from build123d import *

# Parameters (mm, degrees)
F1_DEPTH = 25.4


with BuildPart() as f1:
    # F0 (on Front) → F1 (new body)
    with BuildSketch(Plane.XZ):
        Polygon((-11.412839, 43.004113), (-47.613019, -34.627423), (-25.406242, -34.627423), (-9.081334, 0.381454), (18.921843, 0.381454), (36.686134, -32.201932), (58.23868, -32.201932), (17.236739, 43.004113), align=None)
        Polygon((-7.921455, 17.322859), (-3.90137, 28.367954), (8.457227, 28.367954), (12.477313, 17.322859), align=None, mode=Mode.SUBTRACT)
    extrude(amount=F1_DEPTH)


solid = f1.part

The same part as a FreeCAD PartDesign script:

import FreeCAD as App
import Part
import Sketcher

V = App.Vector
Q = App.Units.Quantity

doc = App.newDocument("Part")
body = doc.addObject("PartDesign::Body", "Body")

sketch1 = body.newObject("Sketcher::SketchObject", "Sketch")
sketch1.AttachmentSupport = (doc.getObject("XZ_Plane"), [""])
sketch1.MapMode = "FlatFace"
sketch1.addGeometry([
    Part.LineSegment(V(-11.412839, 43.004113, 0), V(-47.613019, -34.627423, 0)),
    Part.LineSegment(V(-47.613019, -34.627423, 0), V(-25.406242, -34.627423, 0)),
    Part.LineSegment(V(-25.406242, -34.627423, 0), V(-9.081334, 0.381454, 0)),
    Part.LineSegment(V(-9.081334, 0.381454, 0), V(18.921843, 0.381454, 0)),
    Part.LineSegment(V(18.921843, 0.381454, 0), V(36.686134, -32.201932, 0)),
    Part.LineSegment(V(36.686134, -32.201932, 0), V(58.23868, -32.201932, 0)),
    Part.LineSegment(V(58.23868, -32.201932, 0), V(17.236739, 43.004113, 0)),
    Part.LineSegment(V(17.236739, 43.004113, 0), V(-11.412839, 43.004113, 0)),
    Part.LineSegment(V(12.477313, 17.322859, 0), V(-7.921455, 17.322859, 0)),
    Part.LineSegment(V(-7.921455, 17.322859, 0), V(-3.90137, 28.367954, 0)),
    Part.LineSegment(V(-3.90137, 28.367954, 0), V(8.457227, 28.367954, 0)),
    Part.LineSegment(V(8.457227, 28.367954, 0), V(12.477313, 17.322859, 0)),
], False)
sketch1.addConstraint([
    Sketcher.Constraint("Coincident", 0, 2, 1, 1),
    Sketcher.Constraint("Coincident", 1, 2, 2, 1),
    Sketcher.Constraint("Coincident", 2, 2, 3, 1),
    Sketcher.Constraint("Coincident", 3, 2, 4, 1),
    Sketcher.Constraint("Coincident", 4, 2, 5, 1),
    Sketcher.Constraint("Coincident", 5, 2, 6, 1),
    Sketcher.Constraint("Coincident", 6, 2, 7, 1),
    Sketcher.Constraint("Coincident", 7, 2, 0, 1),
    Sketcher.Constraint("Coincident", 8, 2, 9, 1),
    Sketcher.Constraint("Coincident", 9, 2, 10, 1),
    Sketcher.Constraint("Coincident", 10, 2, 11, 1),
    Sketcher.Constraint("Coincident", 11, 2, 8, 1),
    Sketcher.Constraint("Horizontal", 1),
    Sketcher.Constraint("Horizontal", 3),
    Sketcher.Constraint("Horizontal", 5),
    Sketcher.Constraint("Horizontal", 7),
    Sketcher.Constraint("Horizontal", 8),
    Sketcher.Constraint("Horizontal", 10),
    Sketcher.Constraint("DistanceX", 1, 2, 3, 2, Q("1.7452002 in")),
    Sketcher.Constraint("DistanceX", 8, 2, 8, 1, Q("20.398768 mm")),
    Sketcher.Constraint("DistanceX", 0, 2, 5, 2, Q("105.851699 mm")),
    Sketcher.Constraint("DistanceY", 2, 2, 9, 2, Q("27.9865 mm")),
    Sketcher.Constraint("Distance", 4, Q("37.11128 mm")),
    Sketcher.Constraint("DistanceX", 1, 1, 1, 2, Q("22.206777 mm")),
    Sketcher.Constraint("DistanceX", 3, 1, 3, 2, Q("28.003177 mm")),
    Sketcher.Constraint("DistanceX", 5, 1, 5, 2, Q("21.552546 mm")),
    Sketcher.Constraint("DistanceX", 7, 2, 7, 1, Q("28.649578 mm")),
    Sketcher.Constraint("DistanceX", 10, 1, 10, 2, Q("12.358597 mm")),
    Sketcher.Constraint("DistanceX", 0, 2, -1, 1, Q("47.613019 mm")),
    Sketcher.Constraint("DistanceX", -1, 1, 6, 2, Q("17.236739 mm")),
    Sketcher.Constraint("DistanceY", -1, 1, 8, 2, Q("17.322859 mm")),
    Sketcher.Constraint("DistanceX", 9, 2, -1, 1, Q("3.90137 mm")),
    Sketcher.Constraint("DistanceY", 1, 2, 4, 2, Q("2.425491 mm")),
    Sketcher.Constraint("DistanceY", 3, 2, 6, 2, Q("42.622659 mm")),
    Sketcher.Constraint("DistanceX", 2, 2, 8, 2, Q("1.159879 mm")),
    Sketcher.Constraint("Distance", 9, Q("11.753944 mm")),
])
pad1 = body.newObject("PartDesign::Pad", "Pad")
pad1.Profile = sketch1
pad1.Length = Q("1 in")

doc.recompute()
